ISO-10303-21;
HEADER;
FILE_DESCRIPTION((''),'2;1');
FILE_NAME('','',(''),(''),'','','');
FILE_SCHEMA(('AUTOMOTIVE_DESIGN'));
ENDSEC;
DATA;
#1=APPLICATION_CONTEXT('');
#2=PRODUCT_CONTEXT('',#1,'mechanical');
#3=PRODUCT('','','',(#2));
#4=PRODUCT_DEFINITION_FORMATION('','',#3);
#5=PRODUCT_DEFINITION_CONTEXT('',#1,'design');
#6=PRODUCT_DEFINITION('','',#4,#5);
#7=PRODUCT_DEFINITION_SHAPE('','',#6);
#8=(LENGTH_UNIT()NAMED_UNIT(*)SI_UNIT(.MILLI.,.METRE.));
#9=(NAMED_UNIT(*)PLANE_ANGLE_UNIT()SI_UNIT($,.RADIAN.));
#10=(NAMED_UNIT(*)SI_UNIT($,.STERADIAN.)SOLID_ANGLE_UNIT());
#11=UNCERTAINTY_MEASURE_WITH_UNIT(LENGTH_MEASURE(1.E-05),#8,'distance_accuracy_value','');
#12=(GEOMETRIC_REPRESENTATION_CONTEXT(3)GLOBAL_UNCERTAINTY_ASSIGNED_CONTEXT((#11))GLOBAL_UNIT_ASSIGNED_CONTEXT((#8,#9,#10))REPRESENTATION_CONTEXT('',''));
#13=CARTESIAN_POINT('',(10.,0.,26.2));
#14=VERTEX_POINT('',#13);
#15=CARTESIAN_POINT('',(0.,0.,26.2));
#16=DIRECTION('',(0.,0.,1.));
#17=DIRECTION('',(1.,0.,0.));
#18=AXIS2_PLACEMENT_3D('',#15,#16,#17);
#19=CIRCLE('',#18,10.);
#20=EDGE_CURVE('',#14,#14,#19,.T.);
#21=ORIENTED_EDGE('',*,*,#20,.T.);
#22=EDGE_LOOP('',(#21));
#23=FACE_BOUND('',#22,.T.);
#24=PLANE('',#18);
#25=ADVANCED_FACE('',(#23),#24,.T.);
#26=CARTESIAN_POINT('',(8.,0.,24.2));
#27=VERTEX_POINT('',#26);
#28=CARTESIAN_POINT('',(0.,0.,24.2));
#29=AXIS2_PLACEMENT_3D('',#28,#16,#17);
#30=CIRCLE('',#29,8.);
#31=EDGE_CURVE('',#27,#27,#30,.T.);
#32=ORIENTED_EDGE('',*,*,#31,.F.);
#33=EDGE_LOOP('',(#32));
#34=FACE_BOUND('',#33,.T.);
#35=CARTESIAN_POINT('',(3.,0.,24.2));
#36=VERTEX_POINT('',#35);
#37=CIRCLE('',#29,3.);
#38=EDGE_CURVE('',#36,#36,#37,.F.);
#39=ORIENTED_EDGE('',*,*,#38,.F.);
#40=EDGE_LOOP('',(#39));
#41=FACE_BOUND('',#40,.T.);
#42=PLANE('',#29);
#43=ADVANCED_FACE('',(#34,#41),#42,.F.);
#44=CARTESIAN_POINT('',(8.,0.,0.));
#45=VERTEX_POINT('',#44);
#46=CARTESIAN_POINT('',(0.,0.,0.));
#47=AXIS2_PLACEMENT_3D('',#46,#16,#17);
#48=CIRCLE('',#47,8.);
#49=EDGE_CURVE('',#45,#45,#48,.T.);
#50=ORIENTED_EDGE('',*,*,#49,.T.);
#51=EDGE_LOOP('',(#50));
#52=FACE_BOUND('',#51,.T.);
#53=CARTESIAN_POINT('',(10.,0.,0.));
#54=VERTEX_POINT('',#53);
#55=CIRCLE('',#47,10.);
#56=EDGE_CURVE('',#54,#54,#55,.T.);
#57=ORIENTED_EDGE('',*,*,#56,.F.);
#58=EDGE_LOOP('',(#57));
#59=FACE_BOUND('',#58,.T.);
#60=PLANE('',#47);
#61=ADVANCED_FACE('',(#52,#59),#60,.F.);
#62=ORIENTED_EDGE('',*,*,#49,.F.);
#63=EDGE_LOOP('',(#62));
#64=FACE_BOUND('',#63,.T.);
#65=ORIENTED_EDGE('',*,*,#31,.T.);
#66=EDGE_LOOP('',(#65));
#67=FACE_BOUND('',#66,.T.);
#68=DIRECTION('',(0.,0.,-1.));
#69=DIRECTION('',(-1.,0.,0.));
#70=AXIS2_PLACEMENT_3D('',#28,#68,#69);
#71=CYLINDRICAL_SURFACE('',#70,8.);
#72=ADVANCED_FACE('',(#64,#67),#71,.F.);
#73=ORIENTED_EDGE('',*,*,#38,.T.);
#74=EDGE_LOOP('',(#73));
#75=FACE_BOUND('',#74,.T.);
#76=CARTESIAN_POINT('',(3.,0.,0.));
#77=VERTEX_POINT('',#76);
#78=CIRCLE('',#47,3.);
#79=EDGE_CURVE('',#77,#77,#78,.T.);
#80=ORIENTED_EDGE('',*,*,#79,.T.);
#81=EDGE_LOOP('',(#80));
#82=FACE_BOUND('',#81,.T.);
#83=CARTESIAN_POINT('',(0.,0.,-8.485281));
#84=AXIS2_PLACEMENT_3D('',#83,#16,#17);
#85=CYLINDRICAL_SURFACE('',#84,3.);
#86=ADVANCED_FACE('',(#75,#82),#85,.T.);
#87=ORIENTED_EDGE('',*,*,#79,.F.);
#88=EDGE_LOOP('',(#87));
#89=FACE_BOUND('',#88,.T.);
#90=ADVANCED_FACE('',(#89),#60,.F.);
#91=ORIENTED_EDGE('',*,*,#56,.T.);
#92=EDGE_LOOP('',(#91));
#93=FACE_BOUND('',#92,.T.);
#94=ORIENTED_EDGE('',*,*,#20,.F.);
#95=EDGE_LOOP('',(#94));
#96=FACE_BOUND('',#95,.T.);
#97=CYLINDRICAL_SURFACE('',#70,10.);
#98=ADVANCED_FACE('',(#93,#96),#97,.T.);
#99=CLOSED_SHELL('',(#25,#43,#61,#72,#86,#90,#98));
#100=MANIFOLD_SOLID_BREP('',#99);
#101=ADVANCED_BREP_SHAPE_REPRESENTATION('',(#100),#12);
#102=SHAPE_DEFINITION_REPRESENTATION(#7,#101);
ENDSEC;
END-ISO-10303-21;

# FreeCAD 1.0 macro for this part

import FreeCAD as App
import Part
import Sketcher

doc = App.newDocument("Part")
body = doc.addObject("PartDesign::Body", "Body")

# Sketch on XY plane
sketch1 = body.newObject("Sketcher::SketchObject", "Sketch")
sketch1.AttachmentSupport = (doc.getObject("XY_Plane"), [""])
sketch1.MapMode = "FlatFace"
sketch1.addGeometry([
    Part.Circle(App.Vector(0, 0, 0), App.Vector(0, 0, 1), 10),
    Part.Circle(App.Vector(0, 0, 0), App.Vector(0, 0, 1), 8),
], False)
sketch1.addConstraint([
    Sketcher.Constraint("Coincident", 0, 3, -1, 1),
    Sketcher.Constraint("Coincident", 1, 3, -1, 1),
    Sketcher.Constraint("Diameter", 0, 20.0),
    Sketcher.Constraint("Diameter", 1, 16.0),
])
pad1 = body.newObject("PartDesign::Pad", "Pad")
pad1.Profile = sketch1
pad1.Length = 24.2

# Sketch on XY plane
sketch2 = body.newObject("Sketcher::SketchObject", "Sketch001")
sketch2.AttachmentSupport = (doc.getObject("XY_Plane"), [""])
sketch2.MapMode = "FlatFace"
sketch2.AttachmentOffset = App.Placement(App.Vector(0, 0, 24.2), App.Rotation())
sketch2.addGeometry(Part.Circle(App.Vector(0, 0, 0), App.Vector(0, 0, 1), 10), False)
sketch2.addConstraint([
    Sketcher.Constraint("Coincident", 0, 3, -1, 1),
    Sketcher.Constraint("Diameter", 0, 20.0),
])
pad2 = body.newObject("PartDesign::Pad", "Pad001")
pad2.Profile = sketch2
pad2.Length = 2

# Sketch on XY plane
sketch3 = body.newObject("Sketcher::SketchObject", "Sketch002")
sketch3.AttachmentSupport = (doc.getObject("XY_Plane"), [""])
sketch3.MapMode = "FlatFace"
sketch3.AttachmentOffset = App.Placement(App.Vector(0, 0, 24.2), App.Rotation())
sketch3.addGeometry(Part.Circle(App.Vector(0, 0, 0), App.Vector(0, 0, 1), 3), False)
sketch3.addConstraint([
    Sketcher.Constraint("Coincident", 0, 3, -1, 1),
    Sketcher.Constraint("Diameter", 0, 6.0),
])
pad3 = body.newObject("PartDesign::Pad", "Pad002")
pad3.Profile = sketch3
pad3.Length = 24.2
pad3.Reversed = True

doc.recompute()
